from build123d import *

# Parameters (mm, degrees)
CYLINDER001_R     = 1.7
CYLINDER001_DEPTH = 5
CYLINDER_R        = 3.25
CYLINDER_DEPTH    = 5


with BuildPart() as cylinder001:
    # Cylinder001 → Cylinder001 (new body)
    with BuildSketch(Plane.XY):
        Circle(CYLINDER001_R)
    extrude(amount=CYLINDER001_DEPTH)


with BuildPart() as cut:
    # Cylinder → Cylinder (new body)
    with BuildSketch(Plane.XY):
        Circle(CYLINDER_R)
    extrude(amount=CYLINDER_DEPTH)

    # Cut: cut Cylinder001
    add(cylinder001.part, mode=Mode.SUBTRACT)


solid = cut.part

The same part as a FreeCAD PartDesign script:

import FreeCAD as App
import Part
import Sketcher
Q = App.Units.Quantity

doc = App.newDocument("Part")
body = doc.addObject("PartDesign::Body", "Body")

sketch1 = body.newObject("Sketcher::SketchObject", "Sketch")
sketch1.AttachmentSupport = (doc.getObject("XY_Plane"), [""])
sketch1.MapMode = "FlatFace"
sketch1.addGeometry(Part.Circle(App.Vector(0, 0, 0), App.Vector(0, 0, 1), 1.7), False)
sketch1.addConstraint(Sketcher.Constraint("Coincident", 0, 3, -1, 1))
sketch1.addConstraint(Sketcher.Constraint("Diameter", 0, Q("3.4 mm")))
pad1 = body.newObject("PartDesign::Pad", "Pad")
pad1.Profile = sketch1
pad1.Length = 5
body2 = doc.addObject("PartDesign::Body", "Body001")

sketch2 = body2.newObject("Sketcher::SketchObject", "Sketch001")
sketch2.AttachmentSupport = (doc.getObject("XY_Plane001"), [""])
sketch2.MapMode = "FlatFace"
sketch2.addGeometry(Part.Circle(App.Vector(0, 0, 0), App.Vector(0, 0, 1), 3.2), False)
sketch2.addConstraint(Sketcher.Constraint("Coincident", 0, 3, -1, 1))
sketch2.addConstraint(Sketcher.Constraint("Diameter", 0, Q("6.5 mm")))
pad2 = body2.newObject("PartDesign::Pad", "Pad001")
pad2.Profile = sketch2
pad2.Length = 5
doc.recompute()

boolean = body2.newObject("PartDesign::Boolean", "Boolean")
boolean.Type = "Cut"
boolean.addObjects([body])

doc.recompute()
